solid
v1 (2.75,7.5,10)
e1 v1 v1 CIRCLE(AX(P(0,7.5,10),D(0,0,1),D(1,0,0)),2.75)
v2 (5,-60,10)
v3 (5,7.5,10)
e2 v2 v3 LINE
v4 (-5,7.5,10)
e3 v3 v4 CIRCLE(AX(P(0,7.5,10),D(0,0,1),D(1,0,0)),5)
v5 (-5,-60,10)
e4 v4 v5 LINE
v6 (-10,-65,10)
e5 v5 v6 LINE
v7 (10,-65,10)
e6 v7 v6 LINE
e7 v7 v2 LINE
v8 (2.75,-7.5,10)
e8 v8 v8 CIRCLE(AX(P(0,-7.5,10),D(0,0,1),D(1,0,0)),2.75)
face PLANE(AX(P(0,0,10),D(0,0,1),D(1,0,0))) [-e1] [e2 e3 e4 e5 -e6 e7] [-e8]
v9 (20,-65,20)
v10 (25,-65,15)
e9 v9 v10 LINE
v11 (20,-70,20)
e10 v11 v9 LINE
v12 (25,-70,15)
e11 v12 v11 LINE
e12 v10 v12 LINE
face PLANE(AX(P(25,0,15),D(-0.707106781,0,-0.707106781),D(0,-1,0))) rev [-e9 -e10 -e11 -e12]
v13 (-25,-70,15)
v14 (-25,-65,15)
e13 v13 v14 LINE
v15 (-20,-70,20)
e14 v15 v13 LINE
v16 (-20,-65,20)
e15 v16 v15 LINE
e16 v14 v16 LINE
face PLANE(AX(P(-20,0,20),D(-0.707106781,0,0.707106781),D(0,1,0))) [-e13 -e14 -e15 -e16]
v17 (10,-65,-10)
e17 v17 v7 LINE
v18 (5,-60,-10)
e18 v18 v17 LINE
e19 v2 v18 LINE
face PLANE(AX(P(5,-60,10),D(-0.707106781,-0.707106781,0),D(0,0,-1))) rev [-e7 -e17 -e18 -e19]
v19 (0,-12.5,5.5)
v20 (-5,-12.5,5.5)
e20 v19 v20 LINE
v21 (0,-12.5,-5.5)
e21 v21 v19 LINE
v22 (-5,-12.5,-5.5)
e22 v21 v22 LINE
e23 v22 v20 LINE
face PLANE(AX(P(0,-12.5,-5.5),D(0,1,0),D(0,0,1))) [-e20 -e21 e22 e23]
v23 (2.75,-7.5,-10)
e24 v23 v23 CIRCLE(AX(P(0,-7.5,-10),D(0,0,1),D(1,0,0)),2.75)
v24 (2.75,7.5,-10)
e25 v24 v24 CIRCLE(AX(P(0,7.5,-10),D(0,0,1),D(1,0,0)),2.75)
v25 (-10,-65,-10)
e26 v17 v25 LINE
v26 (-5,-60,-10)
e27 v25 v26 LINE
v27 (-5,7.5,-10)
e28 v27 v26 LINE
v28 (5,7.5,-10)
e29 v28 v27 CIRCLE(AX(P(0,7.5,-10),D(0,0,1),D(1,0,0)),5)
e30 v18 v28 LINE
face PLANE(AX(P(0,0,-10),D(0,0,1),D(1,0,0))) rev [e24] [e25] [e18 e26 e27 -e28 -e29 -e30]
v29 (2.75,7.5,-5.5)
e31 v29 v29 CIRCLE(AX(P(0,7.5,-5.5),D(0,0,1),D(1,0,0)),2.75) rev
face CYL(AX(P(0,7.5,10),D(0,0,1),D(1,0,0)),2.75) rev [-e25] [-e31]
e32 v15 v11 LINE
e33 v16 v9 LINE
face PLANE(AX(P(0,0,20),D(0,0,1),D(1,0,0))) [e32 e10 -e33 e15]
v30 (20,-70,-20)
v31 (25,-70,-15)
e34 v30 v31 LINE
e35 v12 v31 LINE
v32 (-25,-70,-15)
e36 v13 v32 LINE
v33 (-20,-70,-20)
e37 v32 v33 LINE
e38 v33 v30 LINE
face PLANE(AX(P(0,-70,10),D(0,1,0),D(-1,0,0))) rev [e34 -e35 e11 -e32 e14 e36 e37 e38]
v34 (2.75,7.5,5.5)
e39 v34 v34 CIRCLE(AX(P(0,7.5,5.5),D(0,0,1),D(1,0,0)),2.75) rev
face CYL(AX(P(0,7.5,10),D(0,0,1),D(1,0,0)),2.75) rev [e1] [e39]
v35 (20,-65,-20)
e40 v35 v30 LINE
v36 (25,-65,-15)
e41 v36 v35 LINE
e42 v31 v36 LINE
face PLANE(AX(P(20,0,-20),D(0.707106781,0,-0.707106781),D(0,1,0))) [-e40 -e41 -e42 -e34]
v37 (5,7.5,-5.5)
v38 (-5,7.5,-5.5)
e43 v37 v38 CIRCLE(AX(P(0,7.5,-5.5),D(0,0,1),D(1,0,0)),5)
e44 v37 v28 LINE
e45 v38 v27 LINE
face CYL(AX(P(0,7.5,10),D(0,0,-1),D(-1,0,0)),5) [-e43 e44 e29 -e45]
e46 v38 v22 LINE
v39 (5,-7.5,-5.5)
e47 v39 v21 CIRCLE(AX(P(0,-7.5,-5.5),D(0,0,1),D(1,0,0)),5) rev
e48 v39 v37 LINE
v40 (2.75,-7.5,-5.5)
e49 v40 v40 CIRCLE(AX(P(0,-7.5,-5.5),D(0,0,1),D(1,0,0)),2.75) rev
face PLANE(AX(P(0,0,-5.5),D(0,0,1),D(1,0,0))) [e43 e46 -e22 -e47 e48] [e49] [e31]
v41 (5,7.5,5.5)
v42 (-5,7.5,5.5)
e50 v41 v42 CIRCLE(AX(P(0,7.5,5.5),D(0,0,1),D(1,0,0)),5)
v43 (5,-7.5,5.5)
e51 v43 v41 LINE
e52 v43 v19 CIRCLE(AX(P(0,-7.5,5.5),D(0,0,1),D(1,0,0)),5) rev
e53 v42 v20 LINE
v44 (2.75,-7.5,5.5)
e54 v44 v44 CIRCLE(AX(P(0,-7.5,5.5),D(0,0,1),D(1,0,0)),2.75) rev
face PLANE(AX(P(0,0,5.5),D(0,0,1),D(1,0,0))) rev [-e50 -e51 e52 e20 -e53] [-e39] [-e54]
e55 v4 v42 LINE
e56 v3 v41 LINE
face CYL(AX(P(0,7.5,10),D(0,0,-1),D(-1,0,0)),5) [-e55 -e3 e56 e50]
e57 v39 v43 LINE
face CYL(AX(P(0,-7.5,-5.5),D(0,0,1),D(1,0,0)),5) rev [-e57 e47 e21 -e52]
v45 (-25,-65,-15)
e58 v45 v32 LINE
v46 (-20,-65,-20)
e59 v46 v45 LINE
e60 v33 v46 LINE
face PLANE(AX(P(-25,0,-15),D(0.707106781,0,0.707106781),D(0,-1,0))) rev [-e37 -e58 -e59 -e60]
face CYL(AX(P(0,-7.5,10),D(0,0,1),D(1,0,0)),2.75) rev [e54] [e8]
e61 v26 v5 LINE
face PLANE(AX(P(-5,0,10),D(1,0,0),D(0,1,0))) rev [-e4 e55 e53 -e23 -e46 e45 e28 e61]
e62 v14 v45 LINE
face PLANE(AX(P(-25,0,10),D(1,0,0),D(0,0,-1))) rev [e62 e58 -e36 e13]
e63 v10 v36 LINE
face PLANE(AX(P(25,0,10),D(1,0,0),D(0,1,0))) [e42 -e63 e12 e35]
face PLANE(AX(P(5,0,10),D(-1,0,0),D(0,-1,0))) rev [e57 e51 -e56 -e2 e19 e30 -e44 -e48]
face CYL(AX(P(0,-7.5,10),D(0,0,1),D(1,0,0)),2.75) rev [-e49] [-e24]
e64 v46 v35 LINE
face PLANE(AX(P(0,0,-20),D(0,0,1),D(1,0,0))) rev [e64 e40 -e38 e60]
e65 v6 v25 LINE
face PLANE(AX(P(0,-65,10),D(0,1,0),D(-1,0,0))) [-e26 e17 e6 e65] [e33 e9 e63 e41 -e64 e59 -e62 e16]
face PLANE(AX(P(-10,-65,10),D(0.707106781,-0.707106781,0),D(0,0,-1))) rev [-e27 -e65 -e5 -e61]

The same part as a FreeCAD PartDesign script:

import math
import FreeCAD as App
import Part
import Sketcher

V = App.Vector
Q = App.Units.Quantity


def edges_at(feature, points):
    """Names of the edges that pass closest to the given points."""
    edges = feature.Shape.Edges
    near = lambda p: min(range(len(edges)), key=lambda i: edges[i].distToShape(Part.Vertex(*p))[0])
    return sorted({f"Edge{near(p) + 1}" for p in points})


def add_polygon(sketch, points):
    """Adds a closed chain of lines whose ends are joined by coincident constraints."""
    first, n = sketch.GeometryCount, len(points)
    for a, b in zip(points, points[1:] + points[:1]):
        sketch.addGeometry(Part.LineSegment(App.Vector(*a, 0), App.Vector(*b, 0)), False)
    for i in range(n):
        sketch.addConstraint(Sketcher.Constraint("Coincident", first + i, 2, first + (i + 1) % n, 1))

doc = App.newDocument("Part")
body = doc.addObject("PartDesign::Body", "Body")

# Sketch on XY plane
sketch1 = body.newObject("Sketcher::SketchObject", "Sketch")
sketch1.AttachmentSupport = (doc.getObject("XY_Plane"), [""])
sketch1.MapMode = "FlatFace"
sketch1.addGeometry(Part.LineSegment(V(-5, -65, 0), V(-25, -65, 0)), False)
sketch1.addGeometry(Part.LineSegment(V(-25, -65, 0), V(-25, -70, 0)), False)
sketch1.addGeometry(Part.LineSegment(V(-25, -70, 0), V(25, -70, 0)), False)
sketch1.addGeometry(Part.LineSegment(V(25, -70, 0), V(25, -65, 0)), False)
sketch1.addGeometry(Part.LineSegment(V(25, -65, 0), V(5, -65, 0)), False)
sketch1.addGeometry(Part.LineSegment(V(5, -65, 0), V(5, 8, 0)), False)
sketch1.addGeometry(Part.ArcOfCircle(Part.Circle(V(0, 8, 0), V(0, 0, 1), 5), math.radians(0), math.radians(180)), False)
sketch1.addGeometry(Part.LineSegment(V(-5, 8, 0), V(-5, -65, 0)), False)
sketch1.addConstraint(Sketcher.Constraint("Coincident", 0, 2, 1, 1))
sketch1.addConstraint(Sketcher.Constraint("Coincident", 1, 2, 2, 1))
sketch1.addConstraint(Sketcher.Constraint("Coincident", 2, 2, 3, 1))
sketch1.addConstraint(Sketcher.Constraint("Coincident", 3, 2, 4, 1))
sketch1.addConstraint(Sketcher.Constraint("Coincident", 4, 2, 5, 1))
sketch1.addConstraint(Sketcher.Constraint("Tangent", 5, 2, 6, 1))
sketch1.addConstraint(Sketcher.Constraint("Tangent", 6, 2, 7, 1))
sketch1.addConstraint(Sketcher.Constraint("Coincident", 7, 2, 0, 1))
sketch1.addConstraint(Sketcher.Constraint("Horizontal", 0))
sketch1.addConstraint(Sketcher.Constraint("Vertical", 1))
sketch1.addConstraint(Sketcher.Constraint("Horizontal", 2))
sketch1.addConstraint(Sketcher.Constraint("Vertical", 3))
sketch1.addConstraint(Sketcher.Constraint("Horizontal", 4))
sketch1.addConstraint(Sketcher.Constraint("Vertical", 5))
sketch1.addConstraint(Sketcher.Constraint("Vertical", 7))
sketch1.addConstraint(Sketcher.Constraint("Symmetric", 0, 2, 3, 2, -2))
sketch1.addConstraint(Sketcher.Constraint("PointOnObject", 6, 3, -2))
sketch1.addConstraint(Sketcher.Constraint("Radius", 6, Q("5 mm")))
sketch1.addConstraint(Sketcher.Constraint("DistanceX", 0, 2, 0, 1, Q("20 mm")))
sketch1.addConstraint(Sketcher.Constraint("DistanceY", 1, 2, 1, 1, Q("5 mm")))
sketch1.addConstraint(Sketcher.Constraint("DistanceY", 5, 1, 5, 2, Q("72.5 mm")))
sketch1.addConstraint(Sketcher.Constraint("DistanceY", 0, 2, -1, 1, Q("65 mm")))
pad1 = body.newObject("PartDesign::Pad", "Pad")
pad1.Profile = sketch1
pad1.Length = 20
pad1.Midplane = True

# Sketch on XY plane
sketch2 = body.newObject("Sketcher::SketchObject", "Sketch001")
sketch2.AttachmentSupport = (doc.getObject("XY_Plane"), [""])
sketch2.MapMode = "FlatFace"
sketch2.AttachmentOffset = App.Placement(V(0, 0, 10), App.Rotation())
sketch2.addGeometry(Part.Circle(V(0, 7.5, 0), V(0, 0, 1), 2.8), False)
sketch2.addGeometry(Part.Circle(V(0, -7.5, 0), V(0, 0, 1), 2.8), False)
sketch2.addConstraint(Sketcher.Constraint("Equal", 0, 1))
sketch2.addConstraint(Sketcher.Constraint("Symmetric", 0, 3, 1, 3, -1, 1))
sketch2.addConstraint(Sketcher.Constraint("PointOnObject", 0, 3, -2))
sketch2.addConstraint(Sketcher.Constraint("Diameter", 0, Q("5.5 mm")))
sketch2.addConstraint(Sketcher.Constraint("DistanceY", 1, 3, 0, 3, Q("15 mm")))
doc.recompute()
hole = body.newObject("PartDesign::Hole", "Hole")
hole.Profile = sketch2
hole.ThreadType = "None"
hole.Diameter = 5.5
hole.DepthType = "ThroughAll"

# Sketch on XY plane
sketch3 = body.newObject("Sketcher::SketchObject", "Sketch002")
sketch3.AttachmentSupport = (doc.getObject("XY_Plane"), [""])
sketch3.MapMode = "FlatFace"
sketch3.addGeometry(Part.ArcOfCircle(Part.Circle(V(0, -8, 0), V(0, 0, 1), 5), math.radians(-90), math.radians(0)), False)
sketch3.addGeometry(Part.LineSegment(V(5, -8, 0), V(5, 8, 0)), False)
sketch3.addGeometry(Part.ArcOfCircle(Part.Circle(V(0, 8, 0), V(0, 0, 1), 5), math.radians(0), math.radians(180)), False)
sketch3.addGeometry(Part.LineSegment(V(-5, 8, 0), V(-5, -12, 0)), False)
sketch3.addGeometry(Part.LineSegment(V(-5, -12, 0), V(0, -12, 0)), False)
sketch3.addConstraint(Sketcher.Constraint("Tangent", 0, 2, 1, 1))
sketch3.addConstraint(Sketcher.Constraint("Tangent", 1, 2, 2, 1))
sketch3.addConstraint(Sketcher.Constraint("Tangent", 2, 2, 3, 1))
sketch3.addConstraint(Sketcher.Constraint("Coincident", 3, 2, 4, 1))
sketch3.addConstraint(Sketcher.Constraint("Tangent", 4, 2, 0, 1))
sketch3.addConstraint(Sketcher.Constraint("Vertical", 1))
sketch3.addConstraint(Sketcher.Constraint("Vertical", 3))
sketch3.addConstraint(Sketcher.Constraint("Horizontal", 4))
sketch3.addConstraint(Sketcher.Constraint("Equal", 0, 2))
sketch3.addConstraint(Sketcher.Constraint("Symmetric", 0, 3, 2, 3, -1, 1))
sketch3.addConstraint(Sketcher.Constraint("Radius", 0, Q("5 mm")))
sketch3.addConstraint(Sketcher.Constraint("DistanceY", 1, 1, 1, 2, Q("15 mm")))
pocket1 = body.newObject("PartDesign::Pocket", "Pocket")
pocket1.Profile = sketch3
pocket1.Length = 11
pocket1.Midplane = True

# Sketch on XY plane
sketch4 = body.newObject("Sketcher::SketchObject", "Sketch003")
sketch4.AttachmentSupport = (doc.getObject("XY_Plane"), [""])
sketch4.MapMode = "FlatFace"
add_polygon(sketch4, [(-25, -65), (-25, -70), (25, -70), (25, -65)])  # lines 0-3
sketch4.addConstraint(Sketcher.Constraint("Vertical", 0))
sketch4.addConstraint(Sketcher.Constraint("Horizontal", 1))
sketch4.addConstraint(Sketcher.Constraint("Vertical", 2))
sketch4.addConstraint(Sketcher.Constraint("Horizontal", 3))
sketch4.addConstraint(Sketcher.Constraint("DistanceX", 1, 1, 1, 2, Q("50 mm")))
sketch4.addConstraint(Sketcher.Constraint("DistanceY", 0, 2, 0, 1, Q("5 mm")))
sketch4.addConstraint(Sketcher.Constraint("DistanceX", 0, 2, -1, 1, Q("25 mm")))
sketch4.addConstraint(Sketcher.Constraint("DistanceY", 0, 2, -1, 1, Q("70 mm")))
pad2 = body.newObject("PartDesign::Pad", "Pad001")
pad2.Profile = sketch4
pad2.Length = 40
pad2.Midplane = True
doc.recompute()

chamfer = body.newObject("PartDesign::Chamfer", "Chamfer")
chamfer.Base = (pad2, edges_at(pad2, [
    (5, -65, 0),
    (-5, -65, 0),
    (-25, -67.5, -20),
    (25, -67.5, 20),
    (-25, -67.5, 20),
    (25, -67.5, -20),
]))
chamfer.Size = 5

doc.recompute()
